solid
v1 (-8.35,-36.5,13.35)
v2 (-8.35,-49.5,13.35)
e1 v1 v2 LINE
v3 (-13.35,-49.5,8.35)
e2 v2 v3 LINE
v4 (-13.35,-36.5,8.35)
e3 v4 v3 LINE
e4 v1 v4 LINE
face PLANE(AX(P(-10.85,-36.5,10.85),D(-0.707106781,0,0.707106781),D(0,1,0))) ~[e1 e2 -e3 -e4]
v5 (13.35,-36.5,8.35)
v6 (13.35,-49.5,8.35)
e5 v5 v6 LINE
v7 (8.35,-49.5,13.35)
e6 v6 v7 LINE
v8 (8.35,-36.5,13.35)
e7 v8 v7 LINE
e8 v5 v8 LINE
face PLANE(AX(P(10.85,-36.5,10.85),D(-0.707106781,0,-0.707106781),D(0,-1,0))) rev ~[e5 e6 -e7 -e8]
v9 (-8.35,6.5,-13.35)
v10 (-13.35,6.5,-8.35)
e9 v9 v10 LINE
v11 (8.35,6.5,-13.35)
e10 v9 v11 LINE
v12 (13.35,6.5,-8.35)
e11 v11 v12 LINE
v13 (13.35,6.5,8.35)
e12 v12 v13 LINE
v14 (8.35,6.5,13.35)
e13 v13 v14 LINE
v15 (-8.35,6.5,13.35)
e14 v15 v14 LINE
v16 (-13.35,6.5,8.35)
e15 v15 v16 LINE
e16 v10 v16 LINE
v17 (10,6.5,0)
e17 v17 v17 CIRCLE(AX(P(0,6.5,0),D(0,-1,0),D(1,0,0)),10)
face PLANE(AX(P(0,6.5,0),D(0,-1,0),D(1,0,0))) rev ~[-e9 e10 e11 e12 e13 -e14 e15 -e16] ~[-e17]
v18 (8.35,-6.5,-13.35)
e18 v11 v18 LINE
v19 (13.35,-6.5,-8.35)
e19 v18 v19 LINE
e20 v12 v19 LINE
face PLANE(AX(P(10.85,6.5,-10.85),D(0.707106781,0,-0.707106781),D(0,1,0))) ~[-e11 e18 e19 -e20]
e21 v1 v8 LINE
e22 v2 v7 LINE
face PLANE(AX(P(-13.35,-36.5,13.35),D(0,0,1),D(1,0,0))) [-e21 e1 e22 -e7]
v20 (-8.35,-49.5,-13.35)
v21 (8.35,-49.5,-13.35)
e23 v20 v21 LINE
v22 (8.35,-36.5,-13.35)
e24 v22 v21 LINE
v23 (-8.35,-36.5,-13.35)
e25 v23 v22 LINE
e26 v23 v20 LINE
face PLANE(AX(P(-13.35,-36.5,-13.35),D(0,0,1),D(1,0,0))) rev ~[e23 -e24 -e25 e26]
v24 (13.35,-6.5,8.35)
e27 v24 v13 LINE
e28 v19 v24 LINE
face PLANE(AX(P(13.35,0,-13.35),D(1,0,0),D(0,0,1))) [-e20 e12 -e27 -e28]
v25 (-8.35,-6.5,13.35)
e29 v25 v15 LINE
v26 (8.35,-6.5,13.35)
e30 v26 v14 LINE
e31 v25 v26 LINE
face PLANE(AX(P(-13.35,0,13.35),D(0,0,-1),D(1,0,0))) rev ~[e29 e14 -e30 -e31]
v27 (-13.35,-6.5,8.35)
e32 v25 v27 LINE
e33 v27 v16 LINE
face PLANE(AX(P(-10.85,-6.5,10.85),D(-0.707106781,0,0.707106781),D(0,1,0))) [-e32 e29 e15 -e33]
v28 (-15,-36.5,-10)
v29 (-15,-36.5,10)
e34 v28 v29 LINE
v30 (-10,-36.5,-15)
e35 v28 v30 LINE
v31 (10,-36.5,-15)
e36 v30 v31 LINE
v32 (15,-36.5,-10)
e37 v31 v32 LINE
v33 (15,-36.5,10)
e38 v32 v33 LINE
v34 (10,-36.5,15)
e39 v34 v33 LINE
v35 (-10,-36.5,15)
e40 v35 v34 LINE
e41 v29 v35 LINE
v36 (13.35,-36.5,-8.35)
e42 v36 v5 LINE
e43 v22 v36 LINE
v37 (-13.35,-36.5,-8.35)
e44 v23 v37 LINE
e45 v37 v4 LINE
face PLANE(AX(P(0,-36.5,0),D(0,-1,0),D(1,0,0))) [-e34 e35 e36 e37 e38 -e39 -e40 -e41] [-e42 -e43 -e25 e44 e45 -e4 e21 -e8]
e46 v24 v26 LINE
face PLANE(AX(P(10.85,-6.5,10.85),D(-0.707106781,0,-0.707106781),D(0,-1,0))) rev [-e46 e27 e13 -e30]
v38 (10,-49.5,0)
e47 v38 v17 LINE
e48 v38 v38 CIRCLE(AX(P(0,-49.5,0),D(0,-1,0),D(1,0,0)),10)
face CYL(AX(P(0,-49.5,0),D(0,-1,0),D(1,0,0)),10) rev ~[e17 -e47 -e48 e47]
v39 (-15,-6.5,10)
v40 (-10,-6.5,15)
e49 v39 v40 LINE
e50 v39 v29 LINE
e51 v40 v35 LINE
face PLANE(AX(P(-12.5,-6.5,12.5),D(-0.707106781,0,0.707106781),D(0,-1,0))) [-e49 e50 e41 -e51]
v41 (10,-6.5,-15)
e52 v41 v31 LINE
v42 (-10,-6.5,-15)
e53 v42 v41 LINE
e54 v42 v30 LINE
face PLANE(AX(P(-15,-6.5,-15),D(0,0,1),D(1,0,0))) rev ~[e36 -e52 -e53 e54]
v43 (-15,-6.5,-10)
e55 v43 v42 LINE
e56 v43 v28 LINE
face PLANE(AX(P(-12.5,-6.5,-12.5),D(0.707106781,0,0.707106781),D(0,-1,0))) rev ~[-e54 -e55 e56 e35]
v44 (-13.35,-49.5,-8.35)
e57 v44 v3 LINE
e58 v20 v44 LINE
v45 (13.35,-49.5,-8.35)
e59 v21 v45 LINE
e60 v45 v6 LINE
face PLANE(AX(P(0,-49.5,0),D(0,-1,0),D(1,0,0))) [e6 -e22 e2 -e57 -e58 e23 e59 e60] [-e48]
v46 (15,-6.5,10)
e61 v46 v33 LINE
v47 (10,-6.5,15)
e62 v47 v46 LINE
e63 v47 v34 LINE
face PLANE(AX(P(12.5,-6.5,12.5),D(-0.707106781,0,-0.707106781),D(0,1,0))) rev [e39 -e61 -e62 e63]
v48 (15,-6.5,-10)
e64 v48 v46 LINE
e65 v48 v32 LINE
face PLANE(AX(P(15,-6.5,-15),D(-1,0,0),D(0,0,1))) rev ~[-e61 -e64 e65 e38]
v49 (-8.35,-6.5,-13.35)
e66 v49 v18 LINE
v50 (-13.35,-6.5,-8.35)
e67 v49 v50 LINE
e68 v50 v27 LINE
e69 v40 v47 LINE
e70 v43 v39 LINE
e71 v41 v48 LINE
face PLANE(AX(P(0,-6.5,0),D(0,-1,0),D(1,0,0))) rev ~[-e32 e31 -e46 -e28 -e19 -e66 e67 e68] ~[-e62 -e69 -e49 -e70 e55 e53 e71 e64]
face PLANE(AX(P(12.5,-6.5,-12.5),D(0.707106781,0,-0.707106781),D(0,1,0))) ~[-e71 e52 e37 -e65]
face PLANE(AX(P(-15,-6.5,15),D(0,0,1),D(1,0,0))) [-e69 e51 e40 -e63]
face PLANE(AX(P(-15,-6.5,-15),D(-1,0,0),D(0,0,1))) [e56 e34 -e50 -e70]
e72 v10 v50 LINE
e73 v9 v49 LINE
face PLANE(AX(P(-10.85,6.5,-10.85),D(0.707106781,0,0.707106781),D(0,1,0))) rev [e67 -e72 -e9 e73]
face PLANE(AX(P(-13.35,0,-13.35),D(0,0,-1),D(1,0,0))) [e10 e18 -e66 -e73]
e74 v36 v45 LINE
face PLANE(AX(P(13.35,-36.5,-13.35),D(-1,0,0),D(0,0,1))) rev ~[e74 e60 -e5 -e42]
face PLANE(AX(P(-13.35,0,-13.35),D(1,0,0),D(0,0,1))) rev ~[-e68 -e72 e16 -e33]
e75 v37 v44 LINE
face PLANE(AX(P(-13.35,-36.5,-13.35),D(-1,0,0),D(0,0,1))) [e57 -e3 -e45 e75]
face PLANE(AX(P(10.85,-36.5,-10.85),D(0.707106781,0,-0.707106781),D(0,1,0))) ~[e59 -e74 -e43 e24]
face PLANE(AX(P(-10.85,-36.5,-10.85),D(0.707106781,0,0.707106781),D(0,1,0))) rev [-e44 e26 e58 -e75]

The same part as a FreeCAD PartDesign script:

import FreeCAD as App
import Part
import Sketcher


def edges_at(feature, points):
    """Names of the edges that pass closest to the given points."""
    edges = feature.Shape.Edges
    near = lambda p: min(range(len(edges)), key=lambda i: edges[i].distToShape(Part.Vertex(*p))[0])
    return sorted({f"Edge{near(p) + 1}" for p in points})

doc = App.newDocument("Part")
body = doc.addObject("PartDesign::Body", "Body")

sketch1 = body.newObject("Sketcher::SketchObject", "Sketch")
sketch1.AttachmentSupport = (doc.getObject("XZ_Plane"), [""])
sketch1.MapMode = "FlatFace"
sketch1.addGeometry(Part.LineSegment(App.Vector(-13.35, 13.35, 0), App.Vector(-13.35, -13.35, 0)), False)
sketch1.addGeometry(Part.LineSegment(App.Vector(-13.35, -13.35, 0), App.Vector(13.35, -13.35, 0)), False)
sketch1.addGeometry(Part.LineSegment(App.Vector(13.35, -13.35, 0), App.Vector(13.35, 13.35, 0)), False)
sketch1.addGeometry(Part.LineSegment(App.Vector(13.35, 13.35, 0), App.Vector(-13.35, 13.35, 0)), False)
sketch1.addConstraint(Sketcher.Constraint("Coincident", 0, 2, 1, 1))
sketch1.addConstraint(Sketcher.Constraint("Coincident", 1, 2, 2, 1))
sketch1.addConstraint(Sketcher.Constraint("Coincident", 2, 2, 3, 1))
sketch1.addConstraint(Sketcher.Constraint("Coincident", 3, 2, 0, 1))
sketch1.addConstraint(Sketcher.Constraint("Vertical", 0))
sketch1.addConstraint(Sketcher.Constraint("Horizontal", 1))
sketch1.addConstraint(Sketcher.Constraint("Vertical", 2))
sketch1.addConstraint(Sketcher.Constraint("Horizontal", 3))
sketch1.addConstraint(Sketcher.Constraint("Symmetric", 0, 2, 2, 2, -1, 1))
sketch1.addConstraint(Sketcher.Constraint("Equal", 3, 0))
sketch1.addConstraint(Sketcher.Constraint("DistanceX", 1, 1, 1, 2, 26.7))
pad1 = body.newObject("PartDesign::Pad", "Pad")
pad1.Profile = sketch1
pad1.Length = 13
pad1.Midplane = True

sketch2 = body.newObject("Sketcher::SketchObject", "Sketch001")
sketch2.AttachmentSupport = (doc.getObject("XZ_Plane"), [""])
sketch2.MapMode = "FlatFace"
sketch2.AttachmentOffset = App.Placement(App.Vector(0, 0, 6.5), App.Rotation())
sketch2.addGeometry(Part.LineSegment(App.Vector(-15, 15, 0), App.Vector(-15, -15, 0)), False)
sketch2.addGeometry(Part.LineSegment(App.Vector(-15, -15, 0), App.Vector(15, -15, 0)), False)
sketch2.addGeometry(Part.LineSegment(App.Vector(15, -15, 0), App.Vector(15, 15, 0)), False)
sketch2.addGeometry(Part.LineSegment(App.Vector(15, 15, 0), App.Vector(-15, 15, 0)), False)
sketch2.addConstraint(Sketcher.Constraint("Coincident", 0, 2, 1, 1))
sketch2.addConstraint(Sketcher.Constraint("Coincident", 1, 2, 2, 1))
sketch2.addConstraint(Sketcher.Constraint("Coincident", 2, 2, 3, 1))
sketch2.addConstraint(Sketcher.Constraint("Coincident", 3, 2, 0, 1))
sketch2.addConstraint(Sketcher.Constraint("Vertical", 0))
sketch2.addConstraint(Sketcher.Constraint("Horizontal", 1))
sketch2.addConstraint(Sketcher.Constraint("Vertical", 2))
sketch2.addConstraint(Sketcher.Constraint("Horizontal", 3))
sketch2.addConstraint(Sketcher.Constraint("Symmetric", 0, 2, 2, 2, -1, 1))
sketch2.addConstraint(Sketcher.Constraint("Equal", 3, 0))
sketch2.addConstraint(Sketcher.Constraint("DistanceX", 1, 1, 1, 2, 30.0))
pad2 = body.newObject("PartDesign::Pad", "Pad001")
pad2.Profile = sketch2
pad2.Length = 30

sketch3 = body.newObject("Sketcher::SketchObject", "Sketch002")
sketch3.AttachmentSupport = (doc.getObject("XZ_Plane"), [""])
sketch3.MapMode = "FlatFace"
sketch3.AttachmentOffset = App.Placement(App.Vector(0, 0, 36.5), App.Rotation())
sketch3.addGeometry(Part.LineSegment(App.Vector(-13.35, 13.35, 0), App.Vector(-13.35, -13.35, 0)), False)
sketch3.addGeometry(Part.LineSegment(App.Vector(-13.35, -13.35, 0), App.Vector(13.35, -13.35, 0)), False)
sketch3.addGeometry(Part.LineSegment(App.Vector(13.35, -13.35, 0), App.Vector(13.35, 13.35, 0)), False)
sketch3.addGeometry(Part.LineSegment(App.Vector(13.35, 13.35, 0), App.Vector(-13.35, 13.35, 0)), False)
sketch3.addConstraint(Sketcher.Constraint("Coincident", 0, 2, 1, 1))
sketch3.addConstraint(Sketcher.Constraint("Coincident", 1, 2, 2, 1))
sketch3.addConstraint(Sketcher.Constraint("Coincident", 2, 2, 3, 1))
sketch3.addConstraint(Sketcher.Constraint("Coincident", 3, 2, 0, 1))
sketch3.addConstraint(Sketcher.Constraint("Vertical", 0))
sketch3.addConstraint(Sketcher.Constraint("Horizontal", 1))
sketch3.addConstraint(Sketcher.Constraint("Vertical", 2))
sketch3.addConstraint(Sketcher.Constraint("Horizontal", 3))
sketch3.addConstraint(Sketcher.Constraint("Symmetric", 0, 2, 2, 2, -1, 1))
sketch3.addConstraint(Sketcher.Constraint("Equal", 3, 0))
sketch3.addConstraint(Sketcher.Constraint("DistanceX", 1, 1, 1, 2, 26.7))
pad3 = body.newObject("PartDesign::Pad", "Pad002")
pad3.Profile = sketch3
pad3.Length = 13
doc.recompute()

chamfer = body.newObject("PartDesign::Chamfer", "Chamfer")
chamfer.Base = (pad3, edges_at(pad3, [
    (13.35, -43, 13.35),
    (13.35, 0, 13.35),
    (13.35, -43, -13.35),
    (13.35, 0, -13.35),
    (-13.35, -43, 13.35),
    (-13.35, -43, -13.35),
    (-13.35, 0, -13.35),
    (-13.35, 0, 13.35),
    (15, -21.5, 15),
    (-15, -21.5, 15),
    (15, -21.5, -15),
    (-15, -21.5, -15),
]))
chamfer.Size = 5

sketch4 = body.newObject("Sketcher::SketchObject", "Sketch003")
sketch4.AttachmentSupport = (doc.getObject("XZ_Plane"), [""])
sketch4.MapMode = "FlatFace"
sketch4.AttachmentOffset = App.Placement(App.Vector(0, 0, 49.5), App.Rotation())
sketch4.addGeometry(Part.Circle(App.Vector(0, 0, 0), App.Vector(0, 0, 1), 10), False)
sketch4.addConstraint(Sketcher.Constraint("Coincident", 0, 3, -1, 1))
sketch4.addConstraint(Sketcher.Constraint("Diameter", 0, 20.0))
pocket1 = body.newObject("PartDesign::Pocket", "Pocket")
pocket1.Profile = sketch4
pocket1.Type = "ThroughAll"

doc.recompute()
